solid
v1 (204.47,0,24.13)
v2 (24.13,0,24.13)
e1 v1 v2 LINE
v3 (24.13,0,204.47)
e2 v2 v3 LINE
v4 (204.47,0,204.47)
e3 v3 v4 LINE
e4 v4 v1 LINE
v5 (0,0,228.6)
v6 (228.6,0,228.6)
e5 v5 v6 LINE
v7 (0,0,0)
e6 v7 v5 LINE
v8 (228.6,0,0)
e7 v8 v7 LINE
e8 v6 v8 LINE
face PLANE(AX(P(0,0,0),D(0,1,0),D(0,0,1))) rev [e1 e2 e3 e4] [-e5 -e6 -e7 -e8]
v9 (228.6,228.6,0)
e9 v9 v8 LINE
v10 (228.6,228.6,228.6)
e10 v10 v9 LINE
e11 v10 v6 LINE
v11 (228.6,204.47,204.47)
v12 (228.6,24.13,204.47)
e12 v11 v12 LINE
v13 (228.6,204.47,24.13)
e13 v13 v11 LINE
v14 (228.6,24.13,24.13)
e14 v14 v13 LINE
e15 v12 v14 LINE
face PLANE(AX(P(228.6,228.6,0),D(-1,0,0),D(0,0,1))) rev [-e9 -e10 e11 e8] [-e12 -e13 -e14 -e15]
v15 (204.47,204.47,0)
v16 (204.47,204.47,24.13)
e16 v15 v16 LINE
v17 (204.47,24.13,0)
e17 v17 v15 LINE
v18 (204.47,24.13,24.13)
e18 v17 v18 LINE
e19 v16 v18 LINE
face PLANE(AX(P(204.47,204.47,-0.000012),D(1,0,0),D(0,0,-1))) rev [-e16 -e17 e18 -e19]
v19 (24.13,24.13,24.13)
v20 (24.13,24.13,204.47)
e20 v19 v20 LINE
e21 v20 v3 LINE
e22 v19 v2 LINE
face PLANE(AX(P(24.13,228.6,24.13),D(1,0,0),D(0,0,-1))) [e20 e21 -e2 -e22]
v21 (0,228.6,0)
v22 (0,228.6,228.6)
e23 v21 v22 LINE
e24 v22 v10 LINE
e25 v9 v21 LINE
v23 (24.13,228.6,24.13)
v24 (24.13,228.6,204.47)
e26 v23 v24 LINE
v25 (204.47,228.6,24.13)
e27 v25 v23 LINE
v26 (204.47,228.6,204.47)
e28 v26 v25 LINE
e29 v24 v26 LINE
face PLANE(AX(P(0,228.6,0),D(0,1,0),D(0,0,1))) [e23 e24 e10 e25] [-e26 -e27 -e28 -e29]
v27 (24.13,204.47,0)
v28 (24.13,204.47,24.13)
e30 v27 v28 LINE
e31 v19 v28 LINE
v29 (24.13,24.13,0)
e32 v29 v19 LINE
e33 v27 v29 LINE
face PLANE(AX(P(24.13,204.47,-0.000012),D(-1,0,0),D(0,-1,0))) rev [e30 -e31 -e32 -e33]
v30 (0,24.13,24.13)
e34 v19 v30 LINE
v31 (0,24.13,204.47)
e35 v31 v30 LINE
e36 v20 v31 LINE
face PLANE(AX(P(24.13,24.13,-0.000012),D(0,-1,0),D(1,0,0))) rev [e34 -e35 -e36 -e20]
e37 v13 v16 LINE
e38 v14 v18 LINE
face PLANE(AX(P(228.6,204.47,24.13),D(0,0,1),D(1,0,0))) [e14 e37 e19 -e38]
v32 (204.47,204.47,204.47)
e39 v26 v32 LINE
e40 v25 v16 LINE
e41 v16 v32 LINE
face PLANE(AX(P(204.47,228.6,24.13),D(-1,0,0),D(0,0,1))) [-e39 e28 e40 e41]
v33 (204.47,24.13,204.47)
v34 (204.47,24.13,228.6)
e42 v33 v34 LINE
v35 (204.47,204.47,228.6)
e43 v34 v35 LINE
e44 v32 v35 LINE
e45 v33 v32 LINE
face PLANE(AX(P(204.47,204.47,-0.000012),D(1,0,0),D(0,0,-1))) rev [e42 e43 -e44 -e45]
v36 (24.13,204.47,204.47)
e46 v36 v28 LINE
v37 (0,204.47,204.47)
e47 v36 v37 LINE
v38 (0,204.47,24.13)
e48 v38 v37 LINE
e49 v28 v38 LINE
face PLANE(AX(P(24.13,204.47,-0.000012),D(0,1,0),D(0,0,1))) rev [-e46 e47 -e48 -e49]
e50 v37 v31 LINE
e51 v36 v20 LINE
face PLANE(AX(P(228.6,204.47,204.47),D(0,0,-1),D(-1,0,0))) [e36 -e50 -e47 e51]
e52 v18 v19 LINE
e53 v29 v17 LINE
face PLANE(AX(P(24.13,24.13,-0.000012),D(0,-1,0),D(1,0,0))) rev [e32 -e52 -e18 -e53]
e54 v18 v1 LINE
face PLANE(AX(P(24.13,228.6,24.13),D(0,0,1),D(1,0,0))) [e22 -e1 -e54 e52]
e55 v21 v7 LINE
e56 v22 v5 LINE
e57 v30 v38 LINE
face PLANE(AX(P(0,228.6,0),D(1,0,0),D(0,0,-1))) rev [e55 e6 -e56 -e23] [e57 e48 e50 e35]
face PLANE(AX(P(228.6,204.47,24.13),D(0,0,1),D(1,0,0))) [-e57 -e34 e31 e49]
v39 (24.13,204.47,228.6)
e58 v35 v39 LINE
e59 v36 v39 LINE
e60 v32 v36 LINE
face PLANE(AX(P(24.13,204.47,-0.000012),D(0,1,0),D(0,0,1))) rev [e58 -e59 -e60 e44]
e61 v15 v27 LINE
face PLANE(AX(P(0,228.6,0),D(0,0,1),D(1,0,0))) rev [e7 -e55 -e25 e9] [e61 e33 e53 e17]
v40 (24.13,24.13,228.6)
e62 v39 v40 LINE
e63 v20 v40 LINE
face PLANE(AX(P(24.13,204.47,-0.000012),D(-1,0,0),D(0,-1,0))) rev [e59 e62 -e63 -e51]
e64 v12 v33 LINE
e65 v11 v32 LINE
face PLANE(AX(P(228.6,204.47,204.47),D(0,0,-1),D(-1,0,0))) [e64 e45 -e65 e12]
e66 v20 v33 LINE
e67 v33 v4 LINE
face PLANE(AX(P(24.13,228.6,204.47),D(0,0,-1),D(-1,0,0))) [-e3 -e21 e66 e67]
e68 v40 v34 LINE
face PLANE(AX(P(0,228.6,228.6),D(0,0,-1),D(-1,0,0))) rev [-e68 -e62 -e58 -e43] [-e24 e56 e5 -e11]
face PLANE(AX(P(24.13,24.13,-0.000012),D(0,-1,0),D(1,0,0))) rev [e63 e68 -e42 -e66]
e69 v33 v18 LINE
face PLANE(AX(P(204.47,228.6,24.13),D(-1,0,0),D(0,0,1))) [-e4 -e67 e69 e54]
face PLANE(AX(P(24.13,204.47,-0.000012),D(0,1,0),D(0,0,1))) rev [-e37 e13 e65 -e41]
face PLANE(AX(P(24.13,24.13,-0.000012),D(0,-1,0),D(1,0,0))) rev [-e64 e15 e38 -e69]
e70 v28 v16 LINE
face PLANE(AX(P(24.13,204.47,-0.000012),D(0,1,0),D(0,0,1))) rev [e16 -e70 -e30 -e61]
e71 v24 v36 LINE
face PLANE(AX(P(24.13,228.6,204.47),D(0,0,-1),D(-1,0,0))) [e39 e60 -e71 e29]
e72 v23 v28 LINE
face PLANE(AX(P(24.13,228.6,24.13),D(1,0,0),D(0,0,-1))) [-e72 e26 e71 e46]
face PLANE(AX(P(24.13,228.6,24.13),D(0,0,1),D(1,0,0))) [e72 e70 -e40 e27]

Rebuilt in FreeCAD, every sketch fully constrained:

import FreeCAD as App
import Part
import Sketcher
Q = App.Units.Quantity

doc = App.newDocument("Part")
body = doc.addObject("PartDesign::Body", "Body")

sketch1 = doc.addObject("Sketcher::SketchObject", "Sketch")
body.addObject(sketch1)
sketch1.AttachmentSupport = (doc.XZ_Plane, [""])
sketch1.MapMode = "FlatFace"
sketch1.addGeometry([
    Part.LineSegment(App.Vector(0, 0, 0), App.Vector(0, 229, 0)),
    Part.LineSegment(App.Vector(0, 229, 0), App.Vector(229, 229, 0)),
    Part.LineSegment(App.Vector(229, 229, 0), App.Vector(229, 0, 0)),
    Part.LineSegment(App.Vector(229, 0, 0), App.Vector(0, 0, 0)),
], False)
sketch1.addConstraint([
    Sketcher.Constraint("Coincident", 0, 2, 1, 1),
    Sketcher.Constraint("Coincident", 1, 2, 2, 1),
    Sketcher.Constraint("Coincident", 2, 2, 3, 1),
    Sketcher.Constraint("Coincident", 3, 2, 0, 1),
    Sketcher.Constraint("Vertical", 0),
    Sketcher.Constraint("Horizontal", 1),
    Sketcher.Constraint("Vertical", 2),
    Sketcher.Constraint("Horizontal", 3),
    Sketcher.Constraint("Coincident", 3, 2, -1, 1),
    Sketcher.Constraint("Equal", 3, 0),
    Sketcher.Constraint("DistanceX", 1, 1, 1, 2, Q("9 in")),
])
pad1 = doc.addObject("PartDesign::Pad", "Pad")
body.addObject(pad1)
pad1.Profile = sketch1
pad1.Length = Q("9 in")
pad1.Reversed = True

sketch2 = doc.addObject("Sketcher::SketchObject", "Sketch001")
body.addObject(sketch2)
sketch2.AttachmentSupport = (doc.XY_Plane, [""])
sketch2.MapMode = "FlatFace"
sketch2.addGeometry([
    Part.LineSegment(App.Vector(24, 204, 0), App.Vector(24, 24, 0)),
    Part.LineSegment(App.Vector(24, 24, 0), App.Vector(204, 24, 0)),
    Part.LineSegment(App.Vector(204, 24, 0), App.Vector(204, 204, 0)),
    Part.LineSegment(App.Vector(204, 204, 0), App.Vector(24, 204, 0)),
], False)
sketch2.addConstraint([
    Sketcher.Constraint("Coincident", 0, 2, 1, 1),
    Sketcher.Constraint("Coincident", 1, 2, 2, 1),
    Sketcher.Constraint("Coincident", 2, 2, 3, 1),
    Sketcher.Constraint("Coincident", 3, 2, 0, 1),
    Sketcher.Constraint("Vertical", 0),
    Sketcher.Constraint("Horizontal", 1),
    Sketcher.Constraint("Vertical", 2),
    Sketcher.Constraint("Horizontal", 3),
    Sketcher.Constraint("Equal", 3, 0),
    Sketcher.Constraint("DistanceX", 1, 1, 1, 2, Q("7.1 in")),
    Sketcher.Constraint("DistanceX", -1, 1, 0, 2, Q("0.95 in")),
    Sketcher.Constraint("DistanceY", -1, 1, 0, 2, Q("0.95 in")),
])
pocket1 = doc.addObject("PartDesign::Pocket", "Pocket")
body.addObject(pocket1)
pocket1.Profile = sketch2
pocket1.Type = "ThroughAll"
pocket1.Midplane = True

sketch3 = doc.addObject("Sketcher::SketchObject", "Sketch002")
body.addObject(sketch3)
sketch3.AttachmentSupport = (doc.YZ_Plane, [""])
sketch3.MapMode = "FlatFace"
sketch3.addGeometry([
    Part.LineSegment(App.Vector(204, 204, 0), App.Vector(24, 204, 0)),
    Part.LineSegment(App.Vector(24, 204, 0), App.Vector(24, 24, 0)),
    Part.LineSegment(App.Vector(24, 24, 0), App.Vector(204, 24, 0)),
    Part.LineSegment(App.Vector(204, 24, 0), App.Vector(204, 204, 0)),
], False)
sketch3.addConstraint([
    Sketcher.Constraint("Coincident", 0, 2, 1, 1),
    Sketcher.Constraint("Coincident", 1, 2, 2, 1),
    Sketcher.Constraint("Coincident", 2, 2, 3, 1),
    Sketcher.Constraint("Coincident", 3, 2, 0, 1),
    Sketcher.Constraint("Horizontal", 0),
    Sketcher.Constraint("Vertical", 1),
    Sketcher.Constraint("Horizontal", 2),
    Sketcher.Constraint("Vertical", 3),
    Sketcher.Constraint("Equal", 2, 1),
    Sketcher.Constraint("DistanceX", 0, 2, 0, 1, Q("7.1 in")),
    Sketcher.Constraint("DistanceX", -1, 1, 0, 2, Q("0.95 in")),
    Sketcher.Constraint("DistanceY", -1, 1, 0, 2, Q("8.05 in")),
])
pocket2 = doc.addObject("PartDesign::Pocket", "Pocket001")
body.addObject(pocket2)
pocket2.Profile = sketch3
pocket2.Type = "ThroughAll"
pocket2.Reversed = True

sketch4 = doc.addObject("Sketcher::SketchObject", "Sketch003")
body.addObject(sketch4)
sketch4.AttachmentSupport = (doc.XZ_Plane, [""])
sketch4.MapMode = "FlatFace"
sketch4.addGeometry([
    Part.LineSegment(App.Vector(24, 24, 0), App.Vector(24, 204, 0)),
    Part.LineSegment(App.Vector(24, 204, 0), App.Vector(204, 204, 0)),
    Part.LineSegment(App.Vector(204, 204, 0), App.Vector(204, 24, 0)),
    Part.LineSegment(App.Vector(204, 24, 0), App.Vector(24, 24, 0)),
], False)
sketch4.addConstraint([
    Sketcher.Constraint("Coincident", 0, 2, 1, 1),
    Sketcher.Constraint("Coincident", 1, 2, 2, 1),
    Sketcher.Constraint("Coincident", 2, 2, 3, 1),
    Sketcher.Constraint("Coincident", 3, 2, 0, 1),
    Sketcher.Constraint("Vertical", 0),
    Sketcher.Constraint("Horizontal", 1),
    Sketcher.Constraint("Vertical", 2),
    Sketcher.Constraint("Horizontal", 3),
    Sketcher.Constraint("Equal", 3, 0),
    Sketcher.Constraint("DistanceX", 1, 1, 1, 2, Q("7.1 in")),
    Sketcher.Constraint("DistanceX", -1, 1, 0, 2, Q("0.95 in")),
    Sketcher.Constraint("DistanceY", -1, 1, 0, 2, Q("8.05 in")),
])
pocket3 = doc.addObject("PartDesign::Pocket", "Pocket002")
body.addObject(pocket3)
pocket3.Profile = sketch4
pocket3.Type = "ThroughAll"

doc.recompute()
